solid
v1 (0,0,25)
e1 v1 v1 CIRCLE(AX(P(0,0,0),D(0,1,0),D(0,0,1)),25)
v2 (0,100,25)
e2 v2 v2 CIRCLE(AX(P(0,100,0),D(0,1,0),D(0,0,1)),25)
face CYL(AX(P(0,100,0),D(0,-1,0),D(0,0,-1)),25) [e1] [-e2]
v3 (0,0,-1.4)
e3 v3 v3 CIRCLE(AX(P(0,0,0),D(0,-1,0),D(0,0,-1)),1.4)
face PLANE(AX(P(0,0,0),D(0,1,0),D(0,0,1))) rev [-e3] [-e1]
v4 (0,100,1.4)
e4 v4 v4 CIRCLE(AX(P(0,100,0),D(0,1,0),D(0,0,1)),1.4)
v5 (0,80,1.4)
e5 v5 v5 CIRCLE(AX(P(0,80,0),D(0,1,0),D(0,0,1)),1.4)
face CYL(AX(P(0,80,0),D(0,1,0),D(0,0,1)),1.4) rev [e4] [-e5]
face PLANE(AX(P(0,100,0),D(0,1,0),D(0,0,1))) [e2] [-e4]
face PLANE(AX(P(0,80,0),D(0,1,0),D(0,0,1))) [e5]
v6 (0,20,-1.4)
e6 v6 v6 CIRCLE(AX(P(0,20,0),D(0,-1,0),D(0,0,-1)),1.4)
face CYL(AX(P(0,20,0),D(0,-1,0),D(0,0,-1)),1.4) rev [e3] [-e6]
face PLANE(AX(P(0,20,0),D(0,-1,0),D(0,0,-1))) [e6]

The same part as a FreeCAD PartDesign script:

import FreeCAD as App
import Part
import Sketcher
from FreeCAD import Vector

doc = App.newDocument("Part")
body = doc.addObject("PartDesign::Body", "Body")

sketch1 = body.newObject("Sketcher::SketchObject", "Sketch")
sketch1.AttachmentSupport = (doc.getObject("XZ_Plane"), [""])
sketch1.MapMode = "FlatFace"
sketch1.addGeometry(Part.Circle(Vector(0, 0, 0), Vector(0, 0, 1), 25), False)
sketch1.addConstraint(Sketcher.Constraint("Coincident", 0, 3, -1, 1))
sketch1.addConstraint(Sketcher.Constraint("Diameter", 0, 50.0))
pad1 = body.newObject("PartDesign::Pad", "Pad")
pad1.Profile = sketch1
pad1.Length = 100
pad1.Reversed = True

sketch2 = body.newObject("Sketcher::SketchObject", "Sketch001")
sketch2.AttachmentSupport = (doc.getObject("XZ_Plane"), [""])
sketch2.MapMode = "FlatFace"
sketch2.AttachmentOffset = App.Placement(Vector(0, 0, -100), App.Rotation())
sketch2.addGeometry(Part.Circle(Vector(0, 0, 0), Vector(0, 0, 1), 1.4), False)
sketch2.addConstraint(Sketcher.Constraint("Coincident", 0, 3, -1, 1))
sketch2.addConstraint(Sketcher.Constraint("Diameter", 0, 2.8))
pocket1 = body.newObject("PartDesign::Pocket", "Pocket")
pocket1.Profile = sketch2
pocket1.Length = 20
pocket1.Reversed = True

sketch3 = body.newObject("Sketcher::SketchObject", "Sketch002")
sketch3.AttachmentSupport = (doc.getObject("XZ_Plane"), [""])
sketch3.MapMode = "FlatFace"
sketch3.addGeometry(Part.Circle(Vector(0, 0, 0), Vector(0, 0, 1), 1.4), False)
sketch3.addConstraint(Sketcher.Constraint("Coincident", 0, 3, -1, 1))
sketch3.addConstraint(Sketcher.Constraint("Diameter", 0, 2.8))
pocket2 = body.newObject("PartDesign::Pocket", "Pocket001")
pocket2.Profile = sketch3
pocket2.Length = 20

doc.recompute()
